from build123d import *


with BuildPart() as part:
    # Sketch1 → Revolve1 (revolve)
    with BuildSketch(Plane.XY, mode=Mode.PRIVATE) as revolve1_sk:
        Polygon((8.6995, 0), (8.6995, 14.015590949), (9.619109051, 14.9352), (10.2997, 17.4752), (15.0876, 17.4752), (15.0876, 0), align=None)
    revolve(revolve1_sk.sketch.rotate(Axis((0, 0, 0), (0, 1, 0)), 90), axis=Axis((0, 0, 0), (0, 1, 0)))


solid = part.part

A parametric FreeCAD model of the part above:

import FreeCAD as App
import Part
import Sketcher
from FreeCAD import Vector
Q = App.Units.Quantity

doc = App.newDocument("Part")
body = doc.addObject("PartDesign::Body", "Body")

sketch1 = doc.addObject("Sketcher::SketchObject", "Sketch")
body.addObject(sketch1)
sketch1.AttachmentSupport = (doc.XY_Plane, [""])
sketch1.MapMode = "FlatFace"
sketch1.addGeometry(Part.LineSegment(Vector(8.7, 14, 0), Vector(8.7, 0, 0)), False)
sketch1.addGeometry(Part.LineSegment(Vector(8.7, 0, 0), Vector(15.1, 0, 0)), False)
sketch1.addGeometry(Part.LineSegment(Vector(15.1, 0, 0), Vector(15.1, 17.5, 0)), False)
sketch1.addGeometry(Part.LineSegment(Vector(15.1, 17.5, 0), Vector(10.3, 17.5, 0)), False)
sketch1.addGeometry(Part.LineSegment(Vector(10.3, 17.5, 0), Vector(9.6, 14.9, 0)), False)
sketch1.addGeometry(Part.LineSegment(Vector(9.6, 14.9, 0), Vector(8.7, 14, 0)), False)
sketch1.addConstraint(Sketcher.Constraint("Coincident", 0, 2, 1, 1))
sketch1.addConstraint(Sketcher.Constraint("Coincident", 1, 2, 2, 1))
sketch1.addConstraint(Sketcher.Constraint("Coincident", 2, 2, 3, 1))
sketch1.addConstraint(Sketcher.Constraint("Coincident", 3, 2, 4, 1))
sketch1.addConstraint(Sketcher.Constraint("Coincident", 4, 2, 5, 1))
sketch1.addConstraint(Sketcher.Constraint("Coincident", 5, 2, 0, 1))
sketch1.addConstraint(Sketcher.Constraint("Vertical", 0))
sketch1.addConstraint(Sketcher.Constraint("Horizontal", 1))
sketch1.addConstraint(Sketcher.Constraint("Vertical", 2))
sketch1.addConstraint(Sketcher.Constraint("Horizontal", 3))
sketch1.addConstraint(Sketcher.Constraint("PointOnObject", 0, 2, -1))
sketch1.addConstraint(Sketcher.Constraint("Angle", 4, Q("-105 deg")))
sketch1.addConstraint(Sketcher.Constraint("Angle", 5, Q("-135 deg")))
sketch1.addConstraint(Sketcher.Constraint("DistanceY", 4, 2, 3, 2, Q("0.1 in")))
sketch1.addConstraint(Sketcher.Constraint("DistanceY", 2, 1, 2, 2, Q("0.688 in")))
sketch1.addConstraint(Sketcher.Constraint("DistanceX", 1, 1, 1, 2, Q("0.2515 in")))
sketch1.addConstraint(Sketcher.Constraint("DistanceX", 3, 2, 3, 1, Q("0.1885 in")))
sketch1.addConstraint(Sketcher.Constraint("DistanceX", -1, 1, 1, 2, Q("0.594 in")))
revolution = doc.addObject("PartDesign::Revolution", "Revolution")
body.addObject(revolution)
revolution.Profile = sketch1
revolution.ReferenceAxis = (sketch1, ["V_Axis"])
revolution.Angle = 360

doc.recompute()
